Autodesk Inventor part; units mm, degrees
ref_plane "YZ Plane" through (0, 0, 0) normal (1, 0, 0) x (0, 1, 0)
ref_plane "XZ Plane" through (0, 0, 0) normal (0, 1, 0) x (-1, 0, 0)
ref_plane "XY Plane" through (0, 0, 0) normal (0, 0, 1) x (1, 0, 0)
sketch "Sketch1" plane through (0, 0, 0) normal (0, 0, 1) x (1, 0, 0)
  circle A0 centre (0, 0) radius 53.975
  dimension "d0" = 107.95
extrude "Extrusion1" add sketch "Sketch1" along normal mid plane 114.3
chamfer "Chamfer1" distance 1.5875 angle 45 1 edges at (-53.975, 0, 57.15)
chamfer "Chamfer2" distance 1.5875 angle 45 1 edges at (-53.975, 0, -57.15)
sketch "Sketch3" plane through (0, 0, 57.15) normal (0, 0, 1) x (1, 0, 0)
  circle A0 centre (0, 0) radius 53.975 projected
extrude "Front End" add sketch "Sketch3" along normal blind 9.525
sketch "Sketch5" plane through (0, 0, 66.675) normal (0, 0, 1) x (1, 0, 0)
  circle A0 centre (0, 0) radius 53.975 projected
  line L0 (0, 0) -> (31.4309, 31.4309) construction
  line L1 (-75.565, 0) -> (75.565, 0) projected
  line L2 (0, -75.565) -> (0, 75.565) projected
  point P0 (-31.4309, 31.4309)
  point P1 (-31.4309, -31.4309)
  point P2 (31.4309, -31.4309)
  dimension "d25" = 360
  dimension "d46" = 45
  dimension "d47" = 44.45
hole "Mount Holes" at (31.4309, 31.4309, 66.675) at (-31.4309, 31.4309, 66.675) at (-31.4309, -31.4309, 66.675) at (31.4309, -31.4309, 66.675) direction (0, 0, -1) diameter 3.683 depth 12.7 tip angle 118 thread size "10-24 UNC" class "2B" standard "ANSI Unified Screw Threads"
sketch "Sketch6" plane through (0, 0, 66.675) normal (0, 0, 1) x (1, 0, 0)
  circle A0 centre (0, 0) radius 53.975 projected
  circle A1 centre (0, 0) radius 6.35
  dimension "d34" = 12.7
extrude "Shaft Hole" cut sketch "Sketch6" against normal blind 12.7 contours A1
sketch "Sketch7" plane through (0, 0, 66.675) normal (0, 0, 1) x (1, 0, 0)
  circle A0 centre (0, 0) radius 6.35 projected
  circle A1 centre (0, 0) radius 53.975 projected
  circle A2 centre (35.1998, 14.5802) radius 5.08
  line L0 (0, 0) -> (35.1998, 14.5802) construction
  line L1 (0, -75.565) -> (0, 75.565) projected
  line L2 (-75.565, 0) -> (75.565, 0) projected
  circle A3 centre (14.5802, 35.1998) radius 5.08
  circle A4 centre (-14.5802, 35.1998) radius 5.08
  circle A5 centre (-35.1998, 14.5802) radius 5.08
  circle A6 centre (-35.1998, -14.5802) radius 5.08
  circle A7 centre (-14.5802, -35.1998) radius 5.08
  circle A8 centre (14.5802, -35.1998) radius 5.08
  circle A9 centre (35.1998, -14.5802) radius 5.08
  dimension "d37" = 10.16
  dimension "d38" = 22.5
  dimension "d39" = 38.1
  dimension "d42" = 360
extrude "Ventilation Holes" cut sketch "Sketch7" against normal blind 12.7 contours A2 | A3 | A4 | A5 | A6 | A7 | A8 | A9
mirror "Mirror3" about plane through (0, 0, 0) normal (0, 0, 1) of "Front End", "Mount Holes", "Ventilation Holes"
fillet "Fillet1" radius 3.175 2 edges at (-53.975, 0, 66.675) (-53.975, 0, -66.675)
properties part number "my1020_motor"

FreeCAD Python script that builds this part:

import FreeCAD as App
import Part
import Sketcher
Q = App.Units.Quantity


def edges_at(feature, points):
    """Names of the edges that pass closest to the given points."""
    edges = feature.Shape.Edges
    near = lambda p: min(range(len(edges)), key=lambda i: edges[i].distToShape(Part.Vertex(*p))[0])
    return sorted({f"Edge{near(p) + 1}" for p in points})

doc = App.newDocument("Part")
params = doc.addObject("Spreadsheet::Sheet", "Params")
for row, (alias, value) in enumerate([
    ("sketch1_diameter", "4.25 in"),
    ("pad1_length", "4.5 in"),
    ("chamfer_size", "0.0625 in"),
    ("chamfer2_size", "0.0625 in"),
    ("sketch2_diameter", "4.25 in"),
    ("pad2_length", "0.375 in"),
    ("sketch3_diameter", "0.145 in"),
    ("hole_diameter", "0.145 in"),
    ("hole_depth", "0.5 in"),
    ("sketch4_diameter", "0.5 in"),
    ("pocket1_length", "0.5 in"),
    ("sketch5_diameter", "0.4 in"),
    ("pocket2_length", "0.5 in"),
    ("fillet_radius", "0.125 in"),
], start=1):
    params.set(f"A{row}", alias)
    params.set(f"B{row}", "=" + value)
    params.setAlias(f"B{row}", alias)

body = doc.addObject("PartDesign::Body", "Body")

sketch1 = body.newObject("Sketcher::SketchObject", "Sketch")
sketch1.AttachmentSupport = (doc.getObject("XY_Plane"), [""])
sketch1.MapMode = "FlatFace"
sketch1.addGeometry(Part.Circle(App.Vector(0, 0, 0), App.Vector(0, 0, 1), 53.975), False)
sketch1.addConstraint(Sketcher.Constraint("Coincident", 0, 3, -1, 1))
sketch1.addConstraint(Sketcher.Constraint("Diameter", 0, Q("4.25 in")))
sketch1.setExpression("Constraints[1]", "Params.sketch1_diameter")
pad1 = body.newObject("PartDesign::Pad", "Pad")
pad1.Profile = sketch1
pad1.setExpression("Length", "Params.pad1_length")
pad1.Midplane = True
doc.recompute()

chamfer = body.newObject("PartDesign::Chamfer", "Chamfer")
chamfer.Base = (pad1, edges_at(pad1, [(-53.975, 0, 57.15)]))
chamfer.setExpression("Size", "Params.chamfer_size")
doc.recompute()

chamfer2 = body.newObject("PartDesign::Chamfer", "Chamfer001")
chamfer2.Base = (chamfer, edges_at(chamfer, [(-53.975, 0, -57.15)]))
chamfer2.setExpression("Size", "Params.chamfer2_size")

sketch2 = body.newObject("Sketcher::SketchObject", "Sketch001")
sketch2.AttachmentSupport = (doc.getObject("XY_Plane"), [""])
sketch2.MapMode = "FlatFace"
sketch2.AttachmentOffset = App.Placement(App.Vector(0, 0, 2.25 * 25.4), App.Rotation())
sketch2.addGeometry(Part.Circle(App.Vector(0, 0, 0), App.Vector(0, 0, 1), 53.975), False)
sketch2.addConstraint(Sketcher.Constraint("Coincident", 0, 3, -1, 1))
sketch2.addConstraint(Sketcher.Constraint("Diameter", 0, Q("4.25 in")))
sketch2.setExpression("Constraints[1]", "Params.sketch2_diameter")
pad2 = body.newObject("PartDesign::Pad", "Pad001")
pad2.Profile = sketch2
pad2.setExpression("Length", "Params.pad2_length")

sketch3 = body.newObject("Sketcher::SketchObject", "Sketch002")
sketch3.AttachmentSupport = (doc.getObject("XY_Plane"), [""])
sketch3.MapMode = "FlatFace"
sketch3.AttachmentOffset = App.Placement(App.Vector(0, 0, 2.625 * 25.4), App.Rotation())
sketch3.addGeometry(Part.Circle(App.Vector(31.4309, 31.4309, 0), App.Vector(0, 0, 1), 1.8415), False)
sketch3.addGeometry(Part.Circle(App.Vector(-31.4309, 31.4309, 0), App.Vector(0, 0, 1), 1.8415), False)
sketch3.addGeometry(Part.Circle(App.Vector(-31.4309, -31.4309, 0), App.Vector(0, 0, 1), 1.8415), False)
sketch3.addGeometry(Part.Circle(App.Vector(31.4309, -31.4309, 0), App.Vector(0, 0, 1), 1.8415), False)
sketch3.addConstraint(Sketcher.Constraint("Equal", 0, 1))
sketch3.addConstraint(Sketcher.Constraint("Equal", 1, 2))
sketch3.addConstraint(Sketcher.Constraint("Equal", 2, 3))
sketch3.addConstraint(Sketcher.Constraint("Symmetric", 0, 3, 2, 3, -1, 1))
sketch3.addConstraint(Sketcher.Constraint("Symmetric", 1, 3, 3, 3, -1, 1))
sketch3.addConstraint(Sketcher.Constraint("Symmetric", 0, 3, 1, 3, -2))
sketch3.addConstraint(Sketcher.Constraint("Diameter", 0, Q("0.145 in")))
sketch3.addConstraint(Sketcher.Constraint("DistanceX", -1, 1, 0, 3, 31.431))
sketch3.addConstraint(Sketcher.Constraint("DistanceY", -1, 1, 0, 3, 31.431))
sketch3.setExpression("Constraints[6]", "Params.sketch3_diameter")
doc.recompute()
hole = body.newObject("PartDesign::Hole", "Hole")
hole.Profile = sketch3
hole.ThreadType = "None"
hole.setExpression("Diameter", "Params.hole_diameter")
hole.DepthType = "Dimension"
hole.setExpression("Depth", "Params.hole_depth")
hole.DrillPoint = "Angled"
hole.DrillPointAngle = 118

sketch4 = body.newObject("Sketcher::SketchObject", "Sketch003")
sketch4.AttachmentSupport = (doc.getObject("XY_Plane"), [""])
sketch4.MapMode = "FlatFace"
sketch4.AttachmentOffset = App.Placement(App.Vector(0, 0, 2.625 * 25.4), App.Rotation())
sketch4.addGeometry(Part.Circle(App.Vector(0, 0, 0), App.Vector(0, 0, 1), 6.35), False)
sketch4.addConstraint(Sketcher.Constraint("Coincident", 0, 3, -1, 1))
sketch4.addConstraint(Sketcher.Constraint("Diameter", 0, Q("0.5 in")))
sketch4.setExpression("Constraints[1]", "Params.sketch4_diameter")
pocket1 = body.newObject("PartDesign::Pocket", "Pocket")
pocket1.Profile = sketch4
pocket1.setExpression("Length", "Params.pocket1_length")

sketch5 = body.newObject("Sketcher::SketchObject", "Sketch004")
sketch5.AttachmentSupport = (doc.getObject("XY_Plane"), [""])
sketch5.MapMode = "FlatFace"
sketch5.AttachmentOffset = App.Placement(App.Vector(0, 0, 2.625 * 25.4), App.Rotation())
sketch5.addGeometry(Part.Circle(App.Vector(35.1998, 14.5802, 0), App.Vector(0, 0, 1), 5.08), False)
sketch5.addGeometry(Part.Circle(App.Vector(14.5802, 35.1998, 0), App.Vector(0, 0, 1), 5.08), False)
sketch5.addGeometry(Part.Circle(App.Vector(-14.5802, 35.1998, 0), App.Vector(0, 0, 1), 5.08), False)
sketch5.addGeometry(Part.Circle(App.Vector(-35.1998, 14.5802, 0), App.Vector(0, 0, 1), 5.08), False)
sketch5.addGeometry(Part.Circle(App.Vector(-35.1998, -14.5802, 0), App.Vector(0, 0, 1), 5.08), False)
sketch5.addGeometry(Part.Circle(App.Vector(-14.5802, -35.1998, 0), App.Vector(0, 0, 1), 5.08), False)
sketch5.addGeometry(Part.Circle(App.Vector(14.5802, -35.1998, 0), App.Vector(0, 0, 1), 5.08), False)
sketch5.addGeometry(Part.Circle(App.Vector(35.1998, -14.5802, 0), App.Vector(0, 0, 1), 5.08), False)
sketch5.addConstraint(Sketcher.Constraint("Equal", 0, 1))
sketch5.addConstraint(Sketcher.Constraint("Equal", 1, 2))
sketch5.addConstraint(Sketcher.Constraint("Equal", 2, 3))
sketch5.addConstraint(Sketcher.Constraint("Equal", 3, 4))
sketch5.addConstraint(Sketcher.Constraint("Equal", 4, 5))
sketch5.addConstraint(Sketcher.Constraint("Equal", 5, 6))
sketch5.addConstraint(Sketcher.Constraint("Equal", 6, 7))
sketch5.addConstraint(Sketcher.Constraint("Symmetric", 0, 3, 4, 3, -1, 1))
sketch5.addConstraint(Sketcher.Constraint("Symmetric", 1, 3, 5, 3, -1, 1))
sketch5.addConstraint(Sketcher.Constraint("Symmetric", 2, 3, 6, 3, -1, 1))
sketch5.addConstraint(Sketcher.Constraint("Symmetric", 3, 3, 7, 3, -1, 1))
sketch5.addConstraint(Sketcher.Constraint("Symmetric", 1, 3, 2, 3, -2))
sketch5.addConstraint(Sketcher.Constraint("Symmetric", 0, 3, 3, 3, -2))
sketch5.addConstraint(Sketcher.Constraint("Diameter", 0, Q("0.4 in")))
sketch5.addConstraint(Sketcher.Constraint("DistanceX", 1, 3, 0, 3, Q("0.8118 in")))
sketch5.addConstraint(Sketcher.Constraint("DistanceY", 0, 3, 1, 3, Q("0.8118 in")))
sketch5.addConstraint(Sketcher.Constraint("DistanceX", -1, 1, 0, 3, 35.1998))
sketch5.addConstraint(Sketcher.Constraint("DistanceY", -1, 1, 0, 3, 14.5802))
sketch5.setExpression("Constraints[13]", "Params.sketch5_diameter")
pocket2 = body.newObject("PartDesign::Pocket", "Pocket001")
pocket2.Profile = sketch5
pocket2.setExpression("Length", "Params.pocket2_length")
doc.recompute()

mirrored = body.newObject("PartDesign::Mirrored", "Mirrored")
mirrored.Originals = [pad2, hole, pocket2]
mirrored.MirrorPlane = (doc.getObject("XY_Plane"), [""])
body.Tip = mirrored
doc.recompute()

fillet = body.newObject("PartDesign::Fillet", "Fillet")
fillet.Base = (mirrored, edges_at(mirrored, [(-53.975, 0, 66.675), (-53.975, 0, -66.675)]))
fillet.setExpression("Radius", "Params.fillet_radius")

doc.recompute()
